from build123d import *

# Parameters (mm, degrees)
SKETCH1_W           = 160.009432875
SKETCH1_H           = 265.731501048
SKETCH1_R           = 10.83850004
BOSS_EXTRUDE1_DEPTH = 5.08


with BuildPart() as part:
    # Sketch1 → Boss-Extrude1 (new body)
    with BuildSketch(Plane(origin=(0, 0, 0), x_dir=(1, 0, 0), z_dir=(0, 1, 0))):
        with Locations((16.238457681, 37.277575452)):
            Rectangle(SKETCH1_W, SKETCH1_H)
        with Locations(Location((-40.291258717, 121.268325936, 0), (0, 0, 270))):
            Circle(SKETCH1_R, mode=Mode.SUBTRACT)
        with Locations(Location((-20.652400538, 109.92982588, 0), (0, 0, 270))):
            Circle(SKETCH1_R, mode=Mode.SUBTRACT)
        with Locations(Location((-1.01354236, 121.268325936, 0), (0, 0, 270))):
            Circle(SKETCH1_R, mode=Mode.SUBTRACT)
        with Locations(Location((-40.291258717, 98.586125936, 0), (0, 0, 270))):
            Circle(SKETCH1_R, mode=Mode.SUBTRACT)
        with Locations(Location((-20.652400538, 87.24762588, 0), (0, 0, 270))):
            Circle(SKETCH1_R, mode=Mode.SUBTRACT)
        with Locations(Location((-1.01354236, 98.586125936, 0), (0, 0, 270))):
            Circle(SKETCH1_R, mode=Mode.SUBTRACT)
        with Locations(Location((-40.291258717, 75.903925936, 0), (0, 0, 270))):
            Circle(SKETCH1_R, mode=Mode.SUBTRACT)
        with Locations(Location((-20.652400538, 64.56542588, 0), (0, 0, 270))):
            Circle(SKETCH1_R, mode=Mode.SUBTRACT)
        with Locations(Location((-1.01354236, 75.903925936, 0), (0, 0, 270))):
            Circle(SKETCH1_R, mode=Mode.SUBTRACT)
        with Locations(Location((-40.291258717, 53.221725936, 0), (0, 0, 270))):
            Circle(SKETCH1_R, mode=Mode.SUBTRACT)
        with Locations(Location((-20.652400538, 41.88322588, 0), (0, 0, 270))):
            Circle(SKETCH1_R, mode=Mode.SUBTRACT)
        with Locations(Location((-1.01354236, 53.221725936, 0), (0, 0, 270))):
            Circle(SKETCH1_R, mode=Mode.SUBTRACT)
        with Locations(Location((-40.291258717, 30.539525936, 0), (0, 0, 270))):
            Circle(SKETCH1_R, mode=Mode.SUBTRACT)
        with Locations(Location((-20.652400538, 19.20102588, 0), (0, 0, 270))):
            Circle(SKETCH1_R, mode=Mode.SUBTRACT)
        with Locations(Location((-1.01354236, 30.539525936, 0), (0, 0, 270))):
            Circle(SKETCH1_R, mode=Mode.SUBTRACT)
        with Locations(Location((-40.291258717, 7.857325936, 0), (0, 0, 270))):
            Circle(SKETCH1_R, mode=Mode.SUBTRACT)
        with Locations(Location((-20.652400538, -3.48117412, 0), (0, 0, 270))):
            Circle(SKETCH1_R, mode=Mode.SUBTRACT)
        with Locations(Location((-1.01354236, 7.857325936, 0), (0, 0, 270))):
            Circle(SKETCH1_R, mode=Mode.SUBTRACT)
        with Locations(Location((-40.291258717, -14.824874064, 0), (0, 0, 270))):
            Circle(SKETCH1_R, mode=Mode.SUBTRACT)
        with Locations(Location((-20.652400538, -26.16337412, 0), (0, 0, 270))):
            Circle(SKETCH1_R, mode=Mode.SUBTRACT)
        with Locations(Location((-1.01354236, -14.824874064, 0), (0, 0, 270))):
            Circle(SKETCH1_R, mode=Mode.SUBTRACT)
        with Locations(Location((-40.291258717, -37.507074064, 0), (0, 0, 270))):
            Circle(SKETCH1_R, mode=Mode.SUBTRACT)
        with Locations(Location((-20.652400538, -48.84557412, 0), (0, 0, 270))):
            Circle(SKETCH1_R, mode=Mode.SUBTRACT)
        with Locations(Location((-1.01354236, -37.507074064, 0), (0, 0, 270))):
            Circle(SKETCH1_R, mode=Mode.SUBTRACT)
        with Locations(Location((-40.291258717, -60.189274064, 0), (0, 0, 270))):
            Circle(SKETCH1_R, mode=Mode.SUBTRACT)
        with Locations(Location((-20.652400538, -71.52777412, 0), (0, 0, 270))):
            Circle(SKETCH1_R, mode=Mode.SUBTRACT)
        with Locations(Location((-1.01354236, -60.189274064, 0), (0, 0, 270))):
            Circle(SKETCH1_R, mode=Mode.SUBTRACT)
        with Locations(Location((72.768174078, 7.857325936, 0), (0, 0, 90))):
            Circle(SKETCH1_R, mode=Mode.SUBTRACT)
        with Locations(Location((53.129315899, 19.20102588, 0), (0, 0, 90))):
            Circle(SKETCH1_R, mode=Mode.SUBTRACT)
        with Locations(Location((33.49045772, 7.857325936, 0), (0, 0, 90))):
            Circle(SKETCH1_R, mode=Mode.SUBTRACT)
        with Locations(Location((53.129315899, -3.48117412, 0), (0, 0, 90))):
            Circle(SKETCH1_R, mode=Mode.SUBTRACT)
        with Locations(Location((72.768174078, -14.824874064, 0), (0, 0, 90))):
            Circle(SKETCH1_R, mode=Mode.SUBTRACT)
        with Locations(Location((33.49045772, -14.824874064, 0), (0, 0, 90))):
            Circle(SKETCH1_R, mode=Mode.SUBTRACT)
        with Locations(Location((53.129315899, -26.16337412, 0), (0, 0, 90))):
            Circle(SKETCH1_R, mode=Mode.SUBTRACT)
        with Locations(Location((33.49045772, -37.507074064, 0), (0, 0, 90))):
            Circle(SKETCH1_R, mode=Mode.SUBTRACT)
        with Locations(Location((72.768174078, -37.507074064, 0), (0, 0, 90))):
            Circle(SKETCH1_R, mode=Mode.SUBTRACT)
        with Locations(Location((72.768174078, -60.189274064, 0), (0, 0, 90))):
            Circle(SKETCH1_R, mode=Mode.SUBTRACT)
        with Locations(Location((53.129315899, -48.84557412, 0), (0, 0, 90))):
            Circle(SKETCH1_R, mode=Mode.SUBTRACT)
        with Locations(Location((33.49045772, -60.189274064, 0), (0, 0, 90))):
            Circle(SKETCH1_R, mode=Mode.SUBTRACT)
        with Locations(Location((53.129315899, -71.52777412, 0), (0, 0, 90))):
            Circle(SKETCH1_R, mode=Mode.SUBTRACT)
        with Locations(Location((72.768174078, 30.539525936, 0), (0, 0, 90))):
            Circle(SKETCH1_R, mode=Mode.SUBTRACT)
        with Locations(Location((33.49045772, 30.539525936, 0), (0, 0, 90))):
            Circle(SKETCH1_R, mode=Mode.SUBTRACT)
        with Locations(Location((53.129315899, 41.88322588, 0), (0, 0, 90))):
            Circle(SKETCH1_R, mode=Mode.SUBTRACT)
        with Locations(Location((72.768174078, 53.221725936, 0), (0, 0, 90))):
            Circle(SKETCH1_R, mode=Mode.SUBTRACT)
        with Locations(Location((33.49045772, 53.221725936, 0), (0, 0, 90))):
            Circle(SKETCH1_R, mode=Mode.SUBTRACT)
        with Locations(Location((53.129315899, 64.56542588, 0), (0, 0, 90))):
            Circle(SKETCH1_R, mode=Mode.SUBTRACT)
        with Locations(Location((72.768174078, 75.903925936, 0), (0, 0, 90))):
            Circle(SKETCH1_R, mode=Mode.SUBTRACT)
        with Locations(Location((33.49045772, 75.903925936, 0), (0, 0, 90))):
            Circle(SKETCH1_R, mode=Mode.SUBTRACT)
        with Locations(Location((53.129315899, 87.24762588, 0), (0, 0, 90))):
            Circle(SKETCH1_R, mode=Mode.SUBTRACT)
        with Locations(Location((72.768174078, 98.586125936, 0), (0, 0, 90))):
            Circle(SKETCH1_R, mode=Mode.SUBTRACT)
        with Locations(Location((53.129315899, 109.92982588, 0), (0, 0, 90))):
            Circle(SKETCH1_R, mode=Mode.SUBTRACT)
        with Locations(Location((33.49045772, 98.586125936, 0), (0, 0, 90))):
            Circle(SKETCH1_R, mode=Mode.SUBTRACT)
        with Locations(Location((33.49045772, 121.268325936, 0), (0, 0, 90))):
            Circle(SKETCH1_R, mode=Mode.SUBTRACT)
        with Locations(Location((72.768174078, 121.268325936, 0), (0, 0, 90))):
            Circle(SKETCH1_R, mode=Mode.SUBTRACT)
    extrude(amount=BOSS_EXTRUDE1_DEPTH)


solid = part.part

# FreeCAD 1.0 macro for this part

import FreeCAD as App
import Part
import Sketcher

V = App.Vector
Q = App.Units.Quantity


def add_polygon(sketch, points):
    """Adds a closed chain of lines whose ends are joined by coincident constraints."""
    first, n = sketch.GeometryCount, len(points)
    for a, b in zip(points, points[1:] + points[:1]):
        sketch.addGeometry(Part.LineSegment(App.Vector(*a, 0), App.Vector(*b, 0)), False)
    for i in range(n):
        sketch.addConstraint(Sketcher.Constraint("Coincident", first + i, 2, first + (i + 1) % n, 1))

doc = App.newDocument("Part")
body = doc.addObject("PartDesign::Body", "Body")

sketch1 = body.newObject("Sketcher::SketchObject", "Sketch")
sketch1.AttachmentSupport = (doc.getObject("XZ_Plane"), [""])
sketch1.MapMode = "FlatFace"
add_polygon(sketch1, [(-63.766259, -170.143326), (-63.766259, 95.588175), (96.243174, 95.588175), (96.243174, -170.143326)])
sketch1.addGeometry(Part.Circle(V(-40.291259, 60.189274, 0), V(0, 0, 1), 10.8385), False)
sketch1.addGeometry(Part.Circle(V(-20.652401, 71.527774, 0), V(0, 0, 1), 10.8385), False)
sketch1.addGeometry(Part.Circle(V(-40.291259, 37.507074, 0), V(0, 0, 1), 10.8385), False)
sketch1.addGeometry(Part.Circle(V(-20.652401, 48.845574, 0), V(0, 0, 1), 10.8385), False)
sketch1.addGeometry(Part.Circle(V(-1.013542, 60.189274, 0), V(0, 0, 1), 10.8385), False)
sketch1.addGeometry(Part.Circle(V(-1.013542, 37.507074, 0), V(0, 0, 1), 10.8385), False)
sketch1.addGeometry(Part.Circle(V(-40.291259, 14.824874, 0), V(0, 0, 1), 10.8385), False)
sketch1.addGeometry(Part.Circle(V(-20.652401, 26.163374, 0), V(0, 0, 1), 10.8385), False)
sketch1.addGeometry(Part.Circle(V(-20.652401, 3.481174, 0), V(0, 0, 1), 10.8385), False)
sketch1.addGeometry(Part.Circle(V(-40.291259, -7.857326, 0), V(0, 0, 1), 10.8385), False)
sketch1.addGeometry(Part.Circle(V(-20.652401, -19.201026, 0), V(0, 0, 1), 10.8385), False)
sketch1.addGeometry(Part.Circle(V(-1.013542, 14.824874, 0), V(0, 0, 1), 10.8385), False)
sketch1.addGeometry(Part.Circle(V(-1.013542, -7.857326, 0), V(0, 0, 1), 10.8385), False)
sketch1.addGeometry(Part.Circle(V(33.490458, 60.189274, 0), V(0, 0, 1), 10.8385), False)
sketch1.addGeometry(Part.Circle(V(33.490458, 37.507074, 0), V(0, 0, 1), 10.8385), False)
sketch1.addGeometry(Part.Circle(V(53.129316, 71.527774, 0), V(0, 0, 1), 10.8385), False)
sketch1.addGeometry(Part.Circle(V(72.768174, 60.189274, 0), V(0, 0, 1), 10.8385), False)
sketch1.addGeometry(Part.Circle(V(53.129316, 48.845574, 0), V(0, 0, 1), 10.8385), False)
sketch1.addGeometry(Part.Circle(V(72.768174, 37.507074, 0), V(0, 0, 1), 10.8385), False)
sketch1.addGeometry(Part.Circle(V(33.490458, 14.824874, 0), V(0, 0, 1), 10.8385), False)
sketch1.addGeometry(Part.Circle(V(33.490458, -7.857326, 0), V(0, 0, 1), 10.8385), False)
sketch1.addGeometry(Part.Circle(V(53.129316, 26.163374, 0), V(0, 0, 1), 10.8385), False)
sketch1.addGeometry(Part.Circle(V(53.129316, 3.481174, 0), V(0, 0, 1), 10.8385), False)
sketch1.addGeometry(Part.Circle(V(72.768174, 14.824874, 0), V(0, 0, 1), 10.8385), False)
sketch1.addGeometry(Part.Circle(V(53.129316, -19.201026, 0), V(0, 0, 1), 10.8385), False)
sketch1.addGeometry(Part.Circle(V(72.768174, -7.857326, 0), V(0, 0, 1), 10.8385), False)
sketch1.addGeometry(Part.Circle(V(-40.291259, -30.539526, 0), V(0, 0, 1), 10.8385), False)
sketch1.addGeometry(Part.Circle(V(-20.652401, -41.883226, 0), V(0, 0, 1), 10.8385), False)
sketch1.addGeometry(Part.Circle(V(-40.291259, -53.221726, 0), V(0, 0, 1), 10.8385), False)
sketch1.addGeometry(Part.Circle(V(-40.291259, -75.903926, 0), V(0, 0, 1), 10.8385), False)
sketch1.addGeometry(Part.Circle(V(-20.652401, -64.565426, 0), V(0, 0, 1), 10.8385), False)
sketch1.addGeometry(Part.Circle(V(-1.013542, -30.539526, 0), V(0, 0, 1), 10.8385), False)
sketch1.addGeometry(Part.Circle(V(-1.013542, -53.221726, 0), V(0, 0, 1), 10.8385), False)
sketch1.addGeometry(Part.Circle(V(-1.013542, -75.903926, 0), V(0, 0, 1), 10.8385), False)
sketch1.addGeometry(Part.Circle(V(-40.291259, -98.586126, 0), V(0, 0, 1), 10.8385), False)
sketch1.addGeometry(Part.Circle(V(-20.652401, -87.247626, 0), V(0, 0, 1), 10.8385), False)
sketch1.addGeometry(Part.Circle(V(-40.291259, -121.268326, 0), V(0, 0, 1), 10.8385), False)
sketch1.addGeometry(Part.Circle(V(-20.652401, -109.929826, 0), V(0, 0, 1), 10.8385), False)
sketch1.addGeometry(Part.Circle(V(-1.013542, -98.586126, 0), V(0, 0, 1), 10.8385), False)
sketch1.addGeometry(Part.Circle(V(-1.013542, -121.268326, 0), V(0, 0, 1), 10.8385), False)
sketch1.addGeometry(Part.Circle(V(33.490458, -30.539526, 0), V(0, 0, 1), 10.8385), False)
sketch1.addGeometry(Part.Circle(V(33.490458, -53.221726, 0), V(0, 0, 1), 10.8385), False)
sketch1.addGeometry(Part.Circle(V(33.490458, -75.903926, 0), V(0, 0, 1), 10.8385), False)
sketch1.addGeometry(Part.Circle(V(53.129316, -41.883226, 0), V(0, 0, 1), 10.8385), False)
sketch1.addGeometry(Part.Circle(V(72.768174, -30.539526, 0), V(0, 0, 1), 10.8385), False)
sketch1.addGeometry(Part.Circle(V(53.129316, -64.565426, 0), V(0, 0, 1), 10.8385), False)
sketch1.addGeometry(Part.Circle(V(72.768174, -53.221726, 0), V(0, 0, 1), 10.8385), False)
sketch1.addGeometry(Part.Circle(V(72.768174, -75.903926, 0), V(0, 0, 1), 10.8385), False)
sketch1.addGeometry(Part.Circle(V(33.490458, -98.586126, 0), V(0, 0, 1), 10.8385), False)
sketch1.addGeometry(Part.Circle(V(33.490458, -121.268326, 0), V(0, 0, 1), 10.8385), False)
sketch1.addGeometry(Part.Circle(V(53.129316, -87.247626, 0), V(0, 0, 1), 10.8385), False)
sketch1.addGeometry(Part.Circle(V(72.768174, -98.586126, 0), V(0, 0, 1), 10.8385), False)
sketch1.addGeometry(Part.Circle(V(53.129316, -109.929826, 0), V(0, 0, 1), 10.8385), False)
sketch1.addGeometry(Part.Circle(V(72.768174, -121.268326, 0), V(0, 0, 1), 10.8385), False)
sketch1.addConstraint([
    Sketcher.Constraint("Vertical", 0),
    Sketcher.Constraint("Horizontal", 1),
    Sketcher.Constraint("Vertical", 2),
    Sketcher.Constraint("Horizontal", 3),
    Sketcher.Constraint("Equal", 4, 5),
    Sketcher.Constraint("Equal", 5, 6),
    Sketcher.Constraint("Equal", 6, 7),
    Sketcher.Constraint("Equal", 7, 8),
    Sketcher.Constraint("Equal", 8, 9),
    Sketcher.Constraint("Equal", 9, 10),
    Sketcher.Constraint("Equal", 10, 11),
    Sketcher.Constraint("Equal", 11, 12),
    Sketcher.Constraint("Equal", 12, 13),
    Sketcher.Constraint("Equal", 13, 14),
    Sketcher.Constraint("Equal", 14, 15),
    Sketcher.Constraint("Equal", 15, 16),
    Sketcher.Constraint("Equal", 16, 17),
    Sketcher.Constraint("Equal", 17, 18),
    Sketcher.Constraint("Equal", 18, 19),
    Sketcher.Constraint("Equal", 19, 20),
    Sketcher.Constraint("Equal", 20, 21),
    Sketcher.Constraint("Equal", 21, 22),
    Sketcher.Constraint("Equal", 22, 23),
    Sketcher.Constraint("Equal", 23, 24),
    Sketcher.Constraint("Equal", 24, 25),
    Sketcher.Constraint("Equal", 25, 26),
    Sketcher.Constraint("Equal", 26, 27),
    Sketcher.Constraint("Equal", 27, 28),
    Sketcher.Constraint("Equal", 28, 29),
    Sketcher.Constraint("Equal", 29, 30),
    Sketcher.Constraint("Equal", 30, 31),
    Sketcher.Constraint("Equal", 31, 32),
    Sketcher.Constraint("Equal", 32, 33),
    Sketcher.Constraint("Equal", 33, 34),
    Sketcher.Constraint("Equal", 34, 35),
    Sketcher.Constraint("Equal", 35, 36),
    Sketcher.Constraint("Equal", 36, 37),
    Sketcher.Constraint("Equal", 37, 38),
    Sketcher.Constraint("Equal", 38, 39),
    Sketcher.Constraint("Equal", 39, 40),
    Sketcher.Constraint("Equal", 40, 41),
    Sketcher.Constraint("Equal", 41, 42),
    Sketcher.Constraint("Equal", 42, 43),
    Sketcher.Constraint("Equal", 43, 44),
    Sketcher.Constraint("Equal", 44, 45),
    Sketcher.Constraint("Equal", 45, 46),
    Sketcher.Constraint("Equal", 46, 47),
    Sketcher.Constraint("Equal", 47, 48),
    Sketcher.Constraint("Equal", 48, 49),
    Sketcher.Constraint("Equal", 49, 50),
    Sketcher.Constraint("Equal", 50, 51),
    Sketcher.Constraint("Equal", 51, 52),
    Sketcher.Constraint("Equal", 52, 53),
    Sketcher.Constraint("Equal", 53, 54),
    Sketcher.Constraint("Equal", 54, 55),
    Sketcher.Constraint("Equal", 55, 56),
    Sketcher.Constraint("Equal", 56, 57),
    Sketcher.Constraint("Horizontal", 4, 3, 8, 3),
    Sketcher.Constraint("Horizontal", 6, 3, 9, 3),
    Sketcher.Constraint("Horizontal", 10, 3, 15, 3),
    Sketcher.Constraint("Horizontal", 13, 3, 16, 3),
    Sketcher.Constraint("Horizontal", 8, 3, 17, 3),
    Sketcher.Constraint("Horizontal", 9, 3, 18, 3),
    Sketcher.Constraint("Horizontal", 5, 3, 19, 3),
    Sketcher.Constraint("Horizontal", 17, 3, 20, 3),
    Sketcher.Constraint("Horizontal", 7, 3, 21, 3),
    Sketcher.Constraint("Horizontal", 18, 3, 22, 3),
    Sketcher.Constraint("Horizontal", 15, 3, 23, 3),
    Sketcher.Constraint("Horizontal", 16, 3, 24, 3),
    Sketcher.Constraint("Horizontal", 11, 3, 25, 3),
    Sketcher.Constraint("Horizontal", 12, 3, 26, 3),
    Sketcher.Constraint("Horizontal", 23, 3, 27, 3),
    Sketcher.Constraint("Horizontal", 14, 3, 28, 3),
    Sketcher.Constraint("Horizontal", 24, 3, 29, 3),
    Sketcher.Constraint("Horizontal", 30, 3, 35, 3),
    Sketcher.Constraint("Horizontal", 32, 3, 36, 3),
    Sketcher.Constraint("Horizontal", 33, 3, 37, 3),
    Sketcher.Constraint("Horizontal", 38, 3, 42, 3),
    Sketcher.Constraint("Horizontal", 40, 3, 43, 3),
    Sketcher.Constraint("Horizontal", 35, 3, 44, 3),
    Sketcher.Constraint("Horizontal", 36, 3, 45, 3),
    Sketcher.Constraint("Horizontal", 37, 3, 46, 3),
    Sketcher.Constraint("Horizontal", 31, 3, 47, 3),
    Sketcher.Constraint("Horizontal", 44, 3, 48, 3),
    Sketcher.Constraint("Horizontal", 34, 3, 49, 3),
    Sketcher.Constraint("Horizontal", 45, 3, 50, 3),
    Sketcher.Constraint("Horizontal", 46, 3, 51, 3),
    Sketcher.Constraint("Horizontal", 42, 3, 52, 3),
    Sketcher.Constraint("Horizontal", 43, 3, 53, 3),
    Sketcher.Constraint("Horizontal", 39, 3, 54, 3),
    Sketcher.Constraint("Horizontal", 52, 3, 55, 3),
    Sketcher.Constraint("Horizontal", 41, 3, 56, 3),
    Sketcher.Constraint("Horizontal", 53, 3, 57, 3),
    Sketcher.Constraint("Vertical", 4, 3, 6, 3),
    Sketcher.Constraint("Vertical", 5, 3, 7, 3),
    Sketcher.Constraint("Vertical", 8, 3, 9, 3),
    Sketcher.Constraint("Vertical", 6, 3, 10, 3),
    Sketcher.Constraint("Vertical", 7, 3, 11, 3),
    Sketcher.Constraint("Vertical", 11, 3, 12, 3),
    Sketcher.Constraint("Vertical", 10, 3, 13, 3),
    Sketcher.Constraint("Vertical", 12, 3, 14, 3),
    Sketcher.Constraint("Vertical", 9, 3, 15, 3),
    Sketcher.Constraint("Vertical", 15, 3, 16, 3),
    Sketcher.Constraint("Vertical", 17, 3, 18, 3),
    Sketcher.Constraint("Vertical", 19, 3, 21, 3),
    Sketcher.Constraint("Vertical", 20, 3, 22, 3),
    Sketcher.Constraint("Vertical", 18, 3, 23, 3),
    Sketcher.Constraint("Vertical", 23, 3, 24, 3),
    Sketcher.Constraint("Vertical", 21, 3, 25, 3),
    Sketcher.Constraint("Vertical", 25, 3, 26, 3),
    Sketcher.Constraint("Vertical", 22, 3, 27, 3),
    Sketcher.Constraint("Vertical", 26, 3, 28, 3),
    Sketcher.Constraint("Vertical", 27, 3, 29, 3),
    Sketcher.Constraint("Vertical", 13, 3, 30, 3),
    Sketcher.Constraint("Vertical", 14, 3, 31, 3),
    Sketcher.Constraint("Vertical", 30, 3, 32, 3),
    Sketcher.Constraint("Vertical", 32, 3, 33, 3),
    Sketcher.Constraint("Vertical", 31, 3, 34, 3),
    Sketcher.Constraint("Vertical", 16, 3, 35, 3),
    Sketcher.Constraint("Vertical", 35, 3, 36, 3),
    Sketcher.Constraint("Vertical", 36, 3, 37, 3),
    Sketcher.Constraint("Vertical", 33, 3, 38, 3),
    Sketcher.Constraint("Vertical", 34, 3, 39, 3),
    Sketcher.Constraint("Vertical", 38, 3, 40, 3),
    Sketcher.Constraint("Vertical", 39, 3, 41, 3),
    Sketcher.Constraint("Vertical", 37, 3, 42, 3),
    Sketcher.Constraint("Vertical", 42, 3, 43, 3),
    Sketcher.Constraint("Vertical", 24, 3, 44, 3),
    Sketcher.Constraint("Vertical", 44, 3, 45, 3),
    Sketcher.Constraint("Vertical", 45, 3, 46, 3),
    Sketcher.Constraint("Vertical", 28, 3, 47, 3),
    Sketcher.Constraint("Vertical", 29, 3, 48, 3),
    Sketcher.Constraint("Vertical", 47, 3, 49, 3),
    Sketcher.Constraint("Vertical", 48, 3, 50, 3),
    Sketcher.Constraint("Vertical", 50, 3, 51, 3),
    Sketcher.Constraint("Vertical", 46, 3, 52, 3),
    Sketcher.Constraint("Vertical", 52, 3, 53, 3),
    Sketcher.Constraint("Vertical", 49, 3, 54, 3),
    Sketcher.Constraint("Vertical", 51, 3, 55, 3),
    Sketcher.Constraint("Vertical", 54, 3, 56, 3),
    Sketcher.Constraint("Vertical", 55, 3, 57, 3),
    Sketcher.Constraint("Diameter", 4, 21.677),
    Sketcher.Constraint("DistanceY", 6, 3, 4, 3, Q("0.893 in")),
    Sketcher.Constraint("DistanceY", 7, 3, 5, 3, Q("0.893 in")),
    Sketcher.Constraint("DistanceY", 10, 3, 6, 3, Q("0.893 in")),
    Sketcher.Constraint("DistanceY", 11, 3, 7, 3, Q("0.893 in")),
    Sketcher.Constraint("DistanceY", 12, 3, 11, 3, Q("0.893 in")),
    Sketcher.Constraint("DistanceY", 13, 3, 10, 3, Q("0.893 in")),
    Sketcher.Constraint("DistanceY", 14, 3, 12, 3, Q("0.893 in")),
    Sketcher.Constraint("DistanceY", 30, 3, 13, 3, Q("0.893 in")),
    Sketcher.Constraint("DistanceY", 31, 3, 14, 3, Q("0.893 in")),
    Sketcher.Constraint("DistanceY", 32, 3, 30, 3, Q("0.893 in")),
    Sketcher.Constraint("DistanceY", 33, 3, 32, 3, Q("0.893 in")),
    Sketcher.Constraint("DistanceY", 34, 3, 31, 3, Q("0.893 in")),
    Sketcher.Constraint("DistanceY", 38, 3, 33, 3, Q("0.893 in")),
    Sketcher.Constraint("DistanceY", 39, 3, 34, 3, Q("0.893 in")),
    Sketcher.Constraint("DistanceY", 40, 3, 38, 3, Q("0.893 in")),
    Sketcher.Constraint("DistanceY", 41, 3, 39, 3, Q("0.893 in")),
    Sketcher.Constraint("DistanceY", 0, 1, 0, 2, 265.731501),
    Sketcher.Constraint("DistanceX", 5, 3, -1, 1, 20.652401),
    Sketcher.Constraint("DistanceY", 4, 3, 5, 3, 11.3385),
    Sketcher.Constraint("DistanceX", 8, 3, 17, 3, 34.504),
    Sketcher.Constraint("DistanceX", 0, 2, 4, 3, 23.475),
    Sketcher.Constraint("DistanceY", 4, 3, 0, 2, 35.398901),
    Sketcher.Constraint("DistanceX", 20, 3, 1, 2, 23.475),
    Sketcher.Constraint("DistanceX", 1, 1, 1, 2, 160.009433),
    Sketcher.Constraint("DistanceX", 4, 3, -1, 1, 40.291259),
    Sketcher.Constraint("DistanceX", 5, 3, 8, 3, 19.638858),
    Sketcher.Constraint("DistanceX", 17, 3, 19, 3, 19.638858),
    Sketcher.Constraint("DistanceY", -1, 1, 4, 3, 60.189274),
])
pad1 = body.newObject("PartDesign::Pad", "Pad")
pad1.Profile = sketch1
pad1.Length = Q("0.2 in")
pad1.Reversed = True

doc.recompute()
